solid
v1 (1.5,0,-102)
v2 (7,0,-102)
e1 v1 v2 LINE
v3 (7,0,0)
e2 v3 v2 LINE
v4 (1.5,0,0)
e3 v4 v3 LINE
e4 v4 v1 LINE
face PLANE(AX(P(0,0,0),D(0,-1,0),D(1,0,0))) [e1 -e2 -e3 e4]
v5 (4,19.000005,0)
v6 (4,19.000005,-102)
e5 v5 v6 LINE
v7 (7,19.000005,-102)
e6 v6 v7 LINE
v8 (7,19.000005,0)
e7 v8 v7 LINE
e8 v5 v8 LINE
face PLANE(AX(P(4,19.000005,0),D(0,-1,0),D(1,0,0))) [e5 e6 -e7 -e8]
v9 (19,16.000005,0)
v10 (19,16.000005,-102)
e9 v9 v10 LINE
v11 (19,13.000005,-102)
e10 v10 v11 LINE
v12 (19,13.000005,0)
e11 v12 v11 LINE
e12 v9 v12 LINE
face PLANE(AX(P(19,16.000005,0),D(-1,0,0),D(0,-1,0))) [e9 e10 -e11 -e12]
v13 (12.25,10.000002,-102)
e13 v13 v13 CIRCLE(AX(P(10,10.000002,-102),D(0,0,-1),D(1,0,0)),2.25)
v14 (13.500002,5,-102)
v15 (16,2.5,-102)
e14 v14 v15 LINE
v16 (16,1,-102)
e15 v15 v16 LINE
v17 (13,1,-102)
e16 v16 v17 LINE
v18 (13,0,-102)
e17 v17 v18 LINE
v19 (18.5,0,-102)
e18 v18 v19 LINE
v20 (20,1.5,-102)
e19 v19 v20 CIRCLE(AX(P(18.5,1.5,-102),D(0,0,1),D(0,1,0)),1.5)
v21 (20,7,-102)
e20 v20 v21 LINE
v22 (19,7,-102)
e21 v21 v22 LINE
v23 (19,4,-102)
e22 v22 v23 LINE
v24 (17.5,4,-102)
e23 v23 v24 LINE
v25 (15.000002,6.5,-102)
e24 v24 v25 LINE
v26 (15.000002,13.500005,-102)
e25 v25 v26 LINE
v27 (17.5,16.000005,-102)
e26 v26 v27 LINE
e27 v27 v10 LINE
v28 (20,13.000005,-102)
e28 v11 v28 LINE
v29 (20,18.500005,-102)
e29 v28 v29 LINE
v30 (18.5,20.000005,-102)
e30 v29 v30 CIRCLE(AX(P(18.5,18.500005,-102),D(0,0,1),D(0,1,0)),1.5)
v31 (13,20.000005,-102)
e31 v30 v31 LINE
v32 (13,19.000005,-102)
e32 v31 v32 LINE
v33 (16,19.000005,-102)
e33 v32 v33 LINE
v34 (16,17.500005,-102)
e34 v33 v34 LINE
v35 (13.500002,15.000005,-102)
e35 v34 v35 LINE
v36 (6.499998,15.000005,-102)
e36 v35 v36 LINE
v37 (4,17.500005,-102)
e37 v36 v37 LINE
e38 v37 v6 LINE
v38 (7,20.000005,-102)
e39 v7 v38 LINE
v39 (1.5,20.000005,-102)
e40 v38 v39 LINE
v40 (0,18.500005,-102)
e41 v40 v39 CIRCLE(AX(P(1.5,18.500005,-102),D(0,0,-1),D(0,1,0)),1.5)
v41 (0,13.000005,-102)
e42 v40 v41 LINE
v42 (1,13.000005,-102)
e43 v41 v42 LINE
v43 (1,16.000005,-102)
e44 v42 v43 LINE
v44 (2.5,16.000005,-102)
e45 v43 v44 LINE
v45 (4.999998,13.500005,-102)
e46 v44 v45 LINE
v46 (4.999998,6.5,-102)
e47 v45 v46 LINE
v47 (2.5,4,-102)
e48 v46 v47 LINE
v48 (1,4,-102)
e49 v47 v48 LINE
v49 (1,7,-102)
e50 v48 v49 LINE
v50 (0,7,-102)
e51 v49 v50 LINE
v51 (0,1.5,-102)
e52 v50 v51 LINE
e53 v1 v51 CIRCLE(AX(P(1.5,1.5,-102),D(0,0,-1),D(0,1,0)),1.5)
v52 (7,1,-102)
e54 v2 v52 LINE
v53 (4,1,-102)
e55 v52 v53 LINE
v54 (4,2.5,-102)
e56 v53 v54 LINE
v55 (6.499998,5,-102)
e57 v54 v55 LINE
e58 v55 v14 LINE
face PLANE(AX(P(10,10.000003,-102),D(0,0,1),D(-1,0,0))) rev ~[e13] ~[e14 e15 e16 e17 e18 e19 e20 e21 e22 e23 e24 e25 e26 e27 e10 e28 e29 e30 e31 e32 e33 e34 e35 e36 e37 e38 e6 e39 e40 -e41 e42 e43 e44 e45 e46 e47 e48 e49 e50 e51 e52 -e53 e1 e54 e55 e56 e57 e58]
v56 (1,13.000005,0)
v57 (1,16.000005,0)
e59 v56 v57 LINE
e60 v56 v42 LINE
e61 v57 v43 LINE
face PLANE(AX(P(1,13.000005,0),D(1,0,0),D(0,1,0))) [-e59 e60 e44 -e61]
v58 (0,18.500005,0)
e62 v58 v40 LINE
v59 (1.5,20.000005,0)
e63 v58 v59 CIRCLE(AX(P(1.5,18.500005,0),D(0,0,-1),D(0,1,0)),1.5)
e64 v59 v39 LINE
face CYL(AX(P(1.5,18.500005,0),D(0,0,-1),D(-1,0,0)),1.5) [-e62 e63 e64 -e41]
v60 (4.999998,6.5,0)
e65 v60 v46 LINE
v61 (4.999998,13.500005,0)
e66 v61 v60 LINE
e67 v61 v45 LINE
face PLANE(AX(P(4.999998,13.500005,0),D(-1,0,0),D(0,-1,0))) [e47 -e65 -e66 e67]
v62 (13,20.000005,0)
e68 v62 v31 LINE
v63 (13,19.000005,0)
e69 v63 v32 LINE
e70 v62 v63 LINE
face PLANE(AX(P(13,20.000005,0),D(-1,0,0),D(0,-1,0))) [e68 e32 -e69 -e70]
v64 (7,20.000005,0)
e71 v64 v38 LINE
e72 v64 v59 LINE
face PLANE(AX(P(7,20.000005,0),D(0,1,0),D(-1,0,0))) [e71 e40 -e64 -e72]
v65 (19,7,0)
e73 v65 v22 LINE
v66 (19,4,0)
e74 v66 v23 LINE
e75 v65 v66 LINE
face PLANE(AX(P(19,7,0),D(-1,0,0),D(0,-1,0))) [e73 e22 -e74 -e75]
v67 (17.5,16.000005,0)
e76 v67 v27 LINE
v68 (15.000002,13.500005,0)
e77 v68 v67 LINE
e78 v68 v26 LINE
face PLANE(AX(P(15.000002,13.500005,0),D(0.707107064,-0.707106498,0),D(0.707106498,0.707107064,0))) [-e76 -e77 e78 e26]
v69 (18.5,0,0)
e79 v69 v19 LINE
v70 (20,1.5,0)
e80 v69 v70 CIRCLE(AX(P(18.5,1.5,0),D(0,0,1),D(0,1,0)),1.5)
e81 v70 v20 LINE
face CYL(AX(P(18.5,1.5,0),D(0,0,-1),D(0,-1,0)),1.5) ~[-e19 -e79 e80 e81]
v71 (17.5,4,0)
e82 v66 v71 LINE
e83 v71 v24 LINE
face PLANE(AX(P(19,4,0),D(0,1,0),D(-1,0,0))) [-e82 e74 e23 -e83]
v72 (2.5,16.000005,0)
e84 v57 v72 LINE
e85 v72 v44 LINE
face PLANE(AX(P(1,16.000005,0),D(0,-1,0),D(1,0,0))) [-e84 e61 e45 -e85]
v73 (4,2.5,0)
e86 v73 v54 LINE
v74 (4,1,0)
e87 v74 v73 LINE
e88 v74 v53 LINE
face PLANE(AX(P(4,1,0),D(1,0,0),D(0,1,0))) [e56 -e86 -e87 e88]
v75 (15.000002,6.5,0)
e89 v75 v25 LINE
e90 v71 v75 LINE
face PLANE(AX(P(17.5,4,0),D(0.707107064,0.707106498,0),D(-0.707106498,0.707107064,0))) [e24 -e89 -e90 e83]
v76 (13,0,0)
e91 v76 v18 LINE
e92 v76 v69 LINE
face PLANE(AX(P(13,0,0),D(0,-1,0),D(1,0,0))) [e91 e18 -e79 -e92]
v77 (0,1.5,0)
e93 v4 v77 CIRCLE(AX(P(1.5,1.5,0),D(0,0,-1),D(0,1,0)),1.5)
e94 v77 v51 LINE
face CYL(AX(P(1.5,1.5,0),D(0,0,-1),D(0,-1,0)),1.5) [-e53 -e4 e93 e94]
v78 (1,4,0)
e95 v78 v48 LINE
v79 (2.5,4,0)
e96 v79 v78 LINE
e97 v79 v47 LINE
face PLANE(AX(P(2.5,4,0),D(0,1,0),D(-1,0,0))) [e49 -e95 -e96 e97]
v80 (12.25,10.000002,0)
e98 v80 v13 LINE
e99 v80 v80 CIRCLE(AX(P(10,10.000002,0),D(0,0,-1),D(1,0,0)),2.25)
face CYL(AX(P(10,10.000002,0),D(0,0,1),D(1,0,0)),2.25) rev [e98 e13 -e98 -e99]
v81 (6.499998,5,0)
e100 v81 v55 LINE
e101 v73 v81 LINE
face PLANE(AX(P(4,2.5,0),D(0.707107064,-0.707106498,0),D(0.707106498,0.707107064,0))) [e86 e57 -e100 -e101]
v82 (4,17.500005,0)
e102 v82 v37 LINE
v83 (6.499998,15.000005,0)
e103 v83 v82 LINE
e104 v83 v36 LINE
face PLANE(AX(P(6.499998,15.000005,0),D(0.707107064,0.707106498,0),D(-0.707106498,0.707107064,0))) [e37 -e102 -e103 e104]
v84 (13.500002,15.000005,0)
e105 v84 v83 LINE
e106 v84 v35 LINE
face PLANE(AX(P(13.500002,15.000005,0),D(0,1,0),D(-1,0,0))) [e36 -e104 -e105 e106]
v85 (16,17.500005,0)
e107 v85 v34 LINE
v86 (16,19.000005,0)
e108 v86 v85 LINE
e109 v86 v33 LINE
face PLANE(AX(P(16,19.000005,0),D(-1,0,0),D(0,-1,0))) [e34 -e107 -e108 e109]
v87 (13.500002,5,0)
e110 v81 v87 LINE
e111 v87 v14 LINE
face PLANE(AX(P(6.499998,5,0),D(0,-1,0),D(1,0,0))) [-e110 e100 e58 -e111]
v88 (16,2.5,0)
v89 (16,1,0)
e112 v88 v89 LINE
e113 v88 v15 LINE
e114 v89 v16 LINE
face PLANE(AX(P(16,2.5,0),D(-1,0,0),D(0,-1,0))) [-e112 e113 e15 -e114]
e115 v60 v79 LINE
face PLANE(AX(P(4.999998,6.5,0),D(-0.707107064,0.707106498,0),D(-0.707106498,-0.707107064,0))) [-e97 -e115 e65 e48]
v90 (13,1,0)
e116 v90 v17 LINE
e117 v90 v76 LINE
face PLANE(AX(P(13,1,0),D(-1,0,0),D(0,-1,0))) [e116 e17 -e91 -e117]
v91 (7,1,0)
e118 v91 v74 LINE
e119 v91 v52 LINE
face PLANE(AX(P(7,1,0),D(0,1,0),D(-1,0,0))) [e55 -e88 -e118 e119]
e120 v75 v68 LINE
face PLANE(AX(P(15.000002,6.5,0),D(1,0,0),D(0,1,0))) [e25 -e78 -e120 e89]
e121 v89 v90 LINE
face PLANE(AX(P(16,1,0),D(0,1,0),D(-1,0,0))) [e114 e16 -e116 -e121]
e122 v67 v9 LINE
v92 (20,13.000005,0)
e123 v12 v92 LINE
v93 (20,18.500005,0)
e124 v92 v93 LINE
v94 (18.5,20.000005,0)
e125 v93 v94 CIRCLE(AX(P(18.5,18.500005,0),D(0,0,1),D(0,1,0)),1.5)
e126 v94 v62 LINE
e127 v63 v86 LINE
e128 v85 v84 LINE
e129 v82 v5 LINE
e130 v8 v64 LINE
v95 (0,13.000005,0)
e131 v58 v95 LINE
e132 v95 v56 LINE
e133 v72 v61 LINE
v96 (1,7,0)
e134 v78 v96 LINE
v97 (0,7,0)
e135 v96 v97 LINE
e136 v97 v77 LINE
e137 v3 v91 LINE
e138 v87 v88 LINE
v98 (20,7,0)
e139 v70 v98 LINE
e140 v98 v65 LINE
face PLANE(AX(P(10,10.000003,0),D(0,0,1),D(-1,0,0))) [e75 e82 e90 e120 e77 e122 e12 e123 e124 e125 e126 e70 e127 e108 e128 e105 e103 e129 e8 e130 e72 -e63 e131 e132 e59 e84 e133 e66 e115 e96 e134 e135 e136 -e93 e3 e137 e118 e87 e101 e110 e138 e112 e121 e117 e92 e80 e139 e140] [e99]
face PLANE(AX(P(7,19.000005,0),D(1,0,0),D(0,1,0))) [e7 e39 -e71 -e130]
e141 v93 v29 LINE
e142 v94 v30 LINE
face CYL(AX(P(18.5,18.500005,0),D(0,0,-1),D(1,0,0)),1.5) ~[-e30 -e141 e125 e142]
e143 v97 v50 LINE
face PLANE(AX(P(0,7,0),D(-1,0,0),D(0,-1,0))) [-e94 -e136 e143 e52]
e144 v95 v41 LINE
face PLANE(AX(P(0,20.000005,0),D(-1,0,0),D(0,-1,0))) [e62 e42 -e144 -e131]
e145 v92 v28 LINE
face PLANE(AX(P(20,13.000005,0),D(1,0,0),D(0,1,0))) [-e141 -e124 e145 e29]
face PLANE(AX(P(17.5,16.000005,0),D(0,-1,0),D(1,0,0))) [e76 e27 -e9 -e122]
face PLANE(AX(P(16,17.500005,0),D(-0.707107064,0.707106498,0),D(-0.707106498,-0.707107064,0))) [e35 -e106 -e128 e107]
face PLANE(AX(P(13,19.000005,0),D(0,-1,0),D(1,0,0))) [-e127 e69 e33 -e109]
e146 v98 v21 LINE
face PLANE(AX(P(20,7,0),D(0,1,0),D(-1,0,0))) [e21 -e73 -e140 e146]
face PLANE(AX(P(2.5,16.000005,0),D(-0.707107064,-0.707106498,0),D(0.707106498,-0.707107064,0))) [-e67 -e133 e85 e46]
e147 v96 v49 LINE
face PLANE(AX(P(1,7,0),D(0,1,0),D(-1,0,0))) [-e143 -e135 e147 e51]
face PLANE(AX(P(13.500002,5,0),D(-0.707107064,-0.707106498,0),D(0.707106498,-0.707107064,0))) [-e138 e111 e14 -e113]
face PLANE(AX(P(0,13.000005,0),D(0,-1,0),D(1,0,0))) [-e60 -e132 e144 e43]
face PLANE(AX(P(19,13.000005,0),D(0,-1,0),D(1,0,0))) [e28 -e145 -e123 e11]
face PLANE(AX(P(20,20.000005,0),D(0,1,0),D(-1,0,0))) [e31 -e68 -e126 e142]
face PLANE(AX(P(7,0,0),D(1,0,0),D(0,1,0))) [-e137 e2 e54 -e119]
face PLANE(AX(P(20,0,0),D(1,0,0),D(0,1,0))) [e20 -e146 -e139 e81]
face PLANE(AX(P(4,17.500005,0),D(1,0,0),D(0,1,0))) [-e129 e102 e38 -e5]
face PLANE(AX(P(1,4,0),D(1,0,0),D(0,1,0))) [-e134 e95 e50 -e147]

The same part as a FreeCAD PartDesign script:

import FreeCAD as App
import Part
import Sketcher
from FreeCAD import Vector


def edges_at(feature, points):
    """Names of the edges that pass closest to the given points."""
    edges = feature.Shape.Edges
    near = lambda p: min(range(len(edges)), key=lambda i: edges[i].distToShape(Part.Vertex(*p))[0])
    return sorted({f"Edge{near(p) + 1}" for p in points})

doc = App.newDocument("Part")
body = doc.addObject("PartDesign::Body", "Body")

# Sketch on XY plane
sketch1 = doc.addObject("Sketcher::SketchObject", "Sketch")
body.addObject(sketch1)
sketch1.AttachmentSupport = (doc.XY_Plane, [""])
sketch1.MapMode = "FlatFace"
sketch1.addGeometry(Part.LineSegment(Vector(7, 1, 0), Vector(7, 0, 0)), False)
sketch1.addGeometry(Part.LineSegment(Vector(7, 0, 0), Vector(0, 0, 0)), False)
sketch1.addGeometry(Part.LineSegment(Vector(0, 0, 0), Vector(0, 7, 0)), False)
sketch1.addGeometry(Part.LineSegment(Vector(0, 7, 0), Vector(1, 7, 0)), False)
sketch1.addGeometry(Part.LineSegment(Vector(1, 7, 0), Vector(1, 4, 0)), False)
sketch1.addGeometry(Part.LineSegment(Vector(1, 4, 0), Vector(2.5, 4, 0)), False)
sketch1.addGeometry(Part.LineSegment(Vector(2.5, 4, 0), Vector(5, 6.5, 0)), False)
sketch1.addGeometry(Part.LineSegment(Vector(5, 6.5, 0), Vector(5, 13.5, 0)), False)
sketch1.addGeometry(Part.LineSegment(Vector(5, 13.5, 0), Vector(2.5, 16, 0)), False)
sketch1.addGeometry(Part.LineSegment(Vector(2.5, 16, 0), Vector(1, 16, 0)), False)
sketch1.addGeometry(Part.LineSegment(Vector(1, 16, 0), Vector(1, 13, 0)), False)
sketch1.addGeometry(Part.LineSegment(Vector(1, 13, 0), Vector(0, 13, 0)), False)
sketch1.addGeometry(Part.LineSegment(Vector(0, 13, 0), Vector(0, 20, 0)), False)
sketch1.addGeometry(Part.LineSegment(Vector(0, 20, 0), Vector(7, 20, 0)), False)
sketch1.addGeometry(Part.LineSegment(Vector(7, 20, 0), Vector(7, 19, 0)), False)
sketch1.addGeometry(Part.LineSegment(Vector(7, 19, 0), Vector(4, 19, 0)), False)
sketch1.addGeometry(Part.LineSegment(Vector(4, 19, 0), Vector(4, 17.5, 0)), False)
sketch1.addGeometry(Part.LineSegment(Vector(4, 17.5, 0), Vector(6.5, 15, 0)), False)
sketch1.addGeometry(Part.LineSegment(Vector(6.5, 15, 0), Vector(13.5, 15, 0)), False)
sketch1.addGeometry(Part.LineSegment(Vector(13.5, 15, 0), Vector(16, 17.5, 0)), False)
sketch1.addGeometry(Part.LineSegment(Vector(16, 17.5, 0), Vector(16, 19, 0)), False)
sketch1.addGeometry(Part.LineSegment(Vector(16, 19, 0), Vector(13, 19, 0)), False)
sketch1.addGeometry(Part.LineSegment(Vector(13, 19, 0), Vector(13, 20, 0)), False)
sketch1.addGeometry(Part.LineSegment(Vector(13, 20, 0), Vector(20, 20, 0)), False)
sketch1.addGeometry(Part.LineSegment(Vector(20, 20, 0), Vector(20, 13, 0)), False)
sketch1.addGeometry(Part.LineSegment(Vector(20, 13, 0), Vector(19, 13, 0)), False)
sketch1.addGeometry(Part.LineSegment(Vector(19, 13, 0), Vector(19, 16, 0)), False)
sketch1.addGeometry(Part.LineSegment(Vector(19, 16, 0), Vector(17.5, 16, 0)), False)
sketch1.addGeometry(Part.LineSegment(Vector(17.5, 16, 0), Vector(15, 13.5, 0)), False)
sketch1.addGeometry(Part.LineSegment(Vector(15, 13.5, 0), Vector(15, 6.5, 0)), False)
sketch1.addGeometry(Part.LineSegment(Vector(15, 6.5, 0), Vector(17.5, 4, 0)), False)
sketch1.addGeometry(Part.LineSegment(Vector(17.5, 4, 0), Vector(19, 4, 0)), False)
sketch1.addGeometry(Part.LineSegment(Vector(19, 4, 0), Vector(19, 7, 0)), False)
sketch1.addGeometry(Part.LineSegment(Vector(19, 7, 0), Vector(20, 7, 0)), False)
sketch1.addGeometry(Part.LineSegment(Vector(20, 7, 0), Vector(20, 0, 0)), False)
sketch1.addGeometry(Part.LineSegment(Vector(20, 0, 0), Vector(13, 0, 0)), False)
sketch1.addGeometry(Part.LineSegment(Vector(13, 0, 0), Vector(13, 1, 0)), False)
sketch1.addGeometry(Part.LineSegment(Vector(13, 1, 0), Vector(16, 1, 0)), False)
sketch1.addGeometry(Part.LineSegment(Vector(16, 1, 0), Vector(16, 2.5, 0)), False)
sketch1.addGeometry(Part.LineSegment(Vector(16, 2.5, 0), Vector(13.5, 5, 0)), False)
sketch1.addGeometry(Part.LineSegment(Vector(13.5, 5, 0), Vector(6.5, 5, 0)), False)
sketch1.addGeometry(Part.LineSegment(Vector(6.5, 5, 0), Vector(4, 2.5, 0)), False)
sketch1.addGeometry(Part.LineSegment(Vector(4, 2.5, 0), Vector(4, 1, 0)), False)
sketch1.addGeometry(Part.LineSegment(Vector(4, 1, 0), Vector(7, 1, 0)), False)
sketch1.addGeometry(Part.Circle(Vector(10, 10, 0), Vector(0, 0, 1), 2.2), False)
sketch1.addConstraint(Sketcher.Constraint("Coincident", 0, 2, 1, 1))
sketch1.addConstraint(Sketcher.Constraint("Coincident", 1, 2, 2, 1))
sketch1.addConstraint(Sketcher.Constraint("Coincident", 2, 2, 3, 1))
sketch1.addConstraint(Sketcher.Constraint("Coincident", 3, 2, 4, 1))
sketch1.addConstraint(Sketcher.Constraint("Coincident", 4, 2, 5, 1))
sketch1.addConstraint(Sketcher.Constraint("Coincident", 5, 2, 6, 1))
sketch1.addConstraint(Sketcher.Constraint("Coincident", 6, 2, 7, 1))
sketch1.addConstraint(Sketcher.Constraint("Coincident", 7, 2, 8, 1))
sketch1.addConstraint(Sketcher.Constraint("Coincident", 8, 2, 9, 1))
sketch1.addConstraint(Sketcher.Constraint("Coincident", 9, 2, 10, 1))
sketch1.addConstraint(Sketcher.Constraint("Coincident", 10, 2, 11, 1))
sketch1.addConstraint(Sketcher.Constraint("Coincident", 11, 2, 12, 1))
sketch1.addConstraint(Sketcher.Constraint("Coincident", 12, 2, 13, 1))
sketch1.addConstraint(Sketcher.Constraint("Coincident", 13, 2, 14, 1))
sketch1.addConstraint(Sketcher.Constraint("Coincident", 14, 2, 15, 1))
sketch1.addConstraint(Sketcher.Constraint("Coincident", 15, 2, 16, 1))
sketch1.addConstraint(Sketcher.Constraint("Coincident", 16, 2, 17, 1))
sketch1.addConstraint(Sketcher.Constraint("Coincident", 17, 2, 18, 1))
sketch1.addConstraint(Sketcher.Constraint("Coincident", 18, 2, 19, 1))
sketch1.addConstraint(Sketcher.Constraint("Coincident", 19, 2, 20, 1))
sketch1.addConstraint(Sketcher.Constraint("Coincident", 20, 2, 21, 1))
sketch1.addConstraint(Sketcher.Constraint("Coincident", 21, 2, 22, 1))
sketch1.addConstraint(Sketcher.Constraint("Coincident", 22, 2, 23, 1))
sketch1.addConstraint(Sketcher.Constraint("Coincident", 23, 2, 24, 1))
sketch1.addConstraint(Sketcher.Constraint("Coincident", 24, 2, 25, 1))
sketch1.addConstraint(Sketcher.Constraint("Coincident", 25, 2, 26, 1))
sketch1.addConstraint(Sketcher.Constraint("Coincident", 26, 2, 27, 1))
sketch1.addConstraint(Sketcher.Constraint("Coincident", 27, 2, 28, 1))
sketch1.addConstraint(Sketcher.Constraint("Coincident", 28, 2, 29, 1))
sketch1.addConstraint(Sketcher.Constraint("Coincident", 29, 2, 30, 1))
sketch1.addConstraint(Sketcher.Constraint("Coincident", 30, 2, 31, 1))
sketch1.addConstraint(Sketcher.Constraint("Coincident", 31, 2, 32, 1))
sketch1.addConstraint(Sketcher.Constraint("Coincident", 32, 2, 33, 1))
sketch1.addConstraint(Sketcher.Constraint("Coincident", 33, 2, 34, 1))
sketch1.addConstraint(Sketcher.Constraint("Coincident", 34, 2, 35, 1))
sketch1.addConstraint(Sketcher.Constraint("Coincident", 35, 2, 36, 1))
sketch1.addConstraint(Sketcher.Constraint("Coincident", 36, 2, 37, 1))
sketch1.addConstraint(Sketcher.Constraint("Coincident", 37, 2, 38, 1))
sketch1.addConstraint(Sketcher.Constraint("Coincident", 38, 2, 39, 1))
sketch1.addConstraint(Sketcher.Constraint("Coincident", 39, 2, 40, 1))
sketch1.addConstraint(Sketcher.Constraint("Coincident", 40, 2, 41, 1))
sketch1.addConstraint(Sketcher.Constraint("Coincident", 41, 2, 42, 1))
sketch1.addConstraint(Sketcher.Constraint("Coincident", 42, 2, 43, 1))
sketch1.addConstraint(Sketcher.Constraint("Coincident", 43, 2, 0, 1))
sketch1.addConstraint(Sketcher.Constraint("Vertical", 0))
sketch1.addConstraint(Sketcher.Constraint("Horizontal", 1))
sketch1.addConstraint(Sketcher.Constraint("Vertical", 2))
sketch1.addConstraint(Sketcher.Constraint("Horizontal", 3))
sketch1.addConstraint(Sketcher.Constraint("Vertical", 4))
sketch1.addConstraint(Sketcher.Constraint("Horizontal", 5))
sketch1.addConstraint(Sketcher.Constraint("Vertical", 7))
sketch1.addConstraint(Sketcher.Constraint("Horizontal", 9))
sketch1.addConstraint(Sketcher.Constraint("Vertical", 10))
sketch1.addConstraint(Sketcher.Constraint("Horizontal", 11))
sketch1.addConstraint(Sketcher.Constraint("Vertical", 12))
sketch1.addConstraint(Sketcher.Constraint("Horizontal", 13))
sketch1.addConstraint(Sketcher.Constraint("Vertical", 14))
sketch1.addConstraint(Sketcher.Constraint("Horizontal", 15))
sketch1.addConstraint(Sketcher.Constraint("Vertical", 16))
sketch1.addConstraint(Sketcher.Constraint("Horizontal", 18))
sketch1.addConstraint(Sketcher.Constraint("Vertical", 20))
sketch1.addConstraint(Sketcher.Constraint("Horizontal", 21))
sketch1.addConstraint(Sketcher.Constraint("Vertical", 22))
sketch1.addConstraint(Sketcher.Constraint("Horizontal", 23))
sketch1.addConstraint(Sketcher.Constraint("Vertical", 24))
sketch1.addConstraint(Sketcher.Constraint("Horizontal", 25))
sketch1.addConstraint(Sketcher.Constraint("Vertical", 26))
sketch1.addConstraint(Sketcher.Constraint("Horizontal", 27))
sketch1.addConstraint(Sketcher.Constraint("Vertical", 29))
sketch1.addConstraint(Sketcher.Constraint("Horizontal", 31))
sketch1.addConstraint(Sketcher.Constraint("Vertical", 32))
sketch1.addConstraint(Sketcher.Constraint("Horizontal", 33))
sketch1.addConstraint(Sketcher.Constraint("Vertical", 34))
sketch1.addConstraint(Sketcher.Constraint("Horizontal", 35))
sketch1.addConstraint(Sketcher.Constraint("Vertical", 36))
sketch1.addConstraint(Sketcher.Constraint("Horizontal", 37))
sketch1.addConstraint(Sketcher.Constraint("Vertical", 38))
sketch1.addConstraint(Sketcher.Constraint("Horizontal", 40))
sketch1.addConstraint(Sketcher.Constraint("Vertical", 42))
sketch1.addConstraint(Sketcher.Constraint("Horizontal", 43))
sketch1.addConstraint(Sketcher.Constraint("Coincident", 1, 2, -1, 1))
sketch1.addConstraint(Sketcher.Constraint("PointOnObject", 11, 2, -2))
sketch1.addConstraint(Sketcher.Constraint("PointOnObject", 34, 2, -1))
sketch1.addConstraint(Sketcher.Constraint("Perpendicular", 6, 8))
sketch1.addConstraint(Sketcher.Constraint("Parallel", 8, 17))
sketch1.addConstraint(Sketcher.Constraint("Perpendicular", 17, 19))
sketch1.addConstraint(Sketcher.Constraint("Parallel", 19, 28))
sketch1.addConstraint(Sketcher.Constraint("Perpendicular", 28, 30))
sketch1.addConstraint(Sketcher.Constraint("Parallel", 30, 39))
sketch1.addConstraint(Sketcher.Constraint("Perpendicular", 39, 41))
sketch1.addConstraint(Sketcher.Constraint("Horizontal", 16, 2, 19, 2))
sketch1.addConstraint(Sketcher.Constraint("Horizontal", 15, 2, 20, 2))
sketch1.addConstraint(Sketcher.Constraint("Horizontal", 13, 2, 22, 2))
sketch1.addConstraint(Sketcher.Constraint("Horizontal", 11, 2, 24, 2))
sketch1.addConstraint(Sketcher.Constraint("Horizontal", 9, 2, 26, 2))
sketch1.addConstraint(Sketcher.Constraint("Horizontal", 7, 2, 28, 2))
sketch1.addConstraint(Sketcher.Constraint("Horizontal", 6, 2, 29, 2))
sketch1.addConstraint(Sketcher.Constraint("Horizontal", 5, 2, 30, 2))
sketch1.addConstraint(Sketcher.Constraint("Horizontal", 3, 2, 32, 2))
sketch1.addConstraint(Sketcher.Constraint("Horizontal", 38, 2, 41, 2))
sketch1.addConstraint(Sketcher.Constraint("Horizontal", 37, 2, 42, 2))
sketch1.addConstraint(Sketcher.Constraint("Vertical", 5, 2, 8, 2))
sketch1.addConstraint(Sketcher.Constraint("Vertical", 4, 2, 9, 2))
sketch1.addConstraint(Sketcher.Constraint("Vertical", 0, 2, 13, 2))
sketch1.addConstraint(Sketcher.Constraint("Vertical", 27, 2, 30, 2))
sketch1.addConstraint(Sketcher.Constraint("Vertical", 26, 2, 31, 2))
sketch1.addConstraint(Sketcher.Constraint("Vertical", 24, 2, 33, 2))
sketch1.addConstraint(Sketcher.Constraint("Vertical", 22, 2, 35, 2))
sketch1.addConstraint(Sketcher.Constraint("Vertical", 20, 2, 37, 2))
sketch1.addConstraint(Sketcher.Constraint("Vertical", 18, 2, 39, 2))
sketch1.addConstraint(Sketcher.Constraint("Vertical", 17, 2, 40, 2))
sketch1.addConstraint(Sketcher.Constraint("Equal", 15, 21))
sketch1.addConstraint(Sketcher.Constraint("Equal", 13, 23))
sketch1.addConstraint(Sketcher.Constraint("Equal", 11, 25))
sketch1.addConstraint(Sketcher.Constraint("Equal", 9, 27))
sketch1.addConstraint(Sketcher.Constraint("Equal", 33, 0))
sketch1.addConstraint(Sketcher.Constraint("Equal", 35, 2))
sketch1.addConstraint(Sketcher.Constraint("Equal", 43, 4))
sketch1.addConstraint(Sketcher.Constraint("Equal", 40, 7))
sketch1.addConstraint(Sketcher.Constraint("Equal", 4, 10))
sketch1.addConstraint(Sketcher.Constraint("Equal", 2, 12))
sketch1.addConstraint(Sketcher.Constraint("Equal", 0, 14))
sketch1.addConstraint(Sketcher.Constraint("Equal", 31, 16))
sketch1.addConstraint(Sketcher.Constraint("Equal", 20, 38))
sketch1.addConstraint(Sketcher.Constraint("Equal", 8, 17))
sketch1.addConstraint(Sketcher.Constraint("Diameter", 44, 4.5))
sketch1.addConstraint(Sketcher.Constraint("DistanceX", 1, 2, 1, 1, 7.0))
sketch1.addConstraint(Sketcher.Constraint("DistanceX", 3, 1, 3, 2, 1.0))
sketch1.addConstraint(Sketcher.Constraint("DistanceX", 15, 2, 15, 1, 3.0))
sketch1.addConstraint(Sketcher.Constraint("DistanceX", 5, 1, 5, 2, 1.5))
sketch1.addConstraint(Sketcher.Constraint("DistanceX", -1, 1, 44, 3, 10.0))
sketch1.addConstraint(Sketcher.Constraint("DistanceX", -1, 1, 19, 2, 16.0))
sketch1.addConstraint(Sketcher.Constraint("DistanceY", -1, 1, 39, 2, 5.0))
sketch1.addConstraint(Sketcher.Constraint("DistanceY", -1, 1, 44, 3, 10.000002))
pad1 = doc.addObject("PartDesign::Pad", "Pad")
body.addObject(pad1)
pad1.Profile = sketch1
pad1.Length = 102
pad1.Reversed = True
doc.recompute()

fillet = doc.addObject("PartDesign::Fillet", "Fillet")
body.addObject(fillet)
fillet.Base = (pad1, edges_at(pad1, [
    (20, 20, -51),
    (20, 0, -51),
    (0, 20, -51),
    (0, 0, -51),
]))
fillet.Radius = 1.5

doc.recompute()
